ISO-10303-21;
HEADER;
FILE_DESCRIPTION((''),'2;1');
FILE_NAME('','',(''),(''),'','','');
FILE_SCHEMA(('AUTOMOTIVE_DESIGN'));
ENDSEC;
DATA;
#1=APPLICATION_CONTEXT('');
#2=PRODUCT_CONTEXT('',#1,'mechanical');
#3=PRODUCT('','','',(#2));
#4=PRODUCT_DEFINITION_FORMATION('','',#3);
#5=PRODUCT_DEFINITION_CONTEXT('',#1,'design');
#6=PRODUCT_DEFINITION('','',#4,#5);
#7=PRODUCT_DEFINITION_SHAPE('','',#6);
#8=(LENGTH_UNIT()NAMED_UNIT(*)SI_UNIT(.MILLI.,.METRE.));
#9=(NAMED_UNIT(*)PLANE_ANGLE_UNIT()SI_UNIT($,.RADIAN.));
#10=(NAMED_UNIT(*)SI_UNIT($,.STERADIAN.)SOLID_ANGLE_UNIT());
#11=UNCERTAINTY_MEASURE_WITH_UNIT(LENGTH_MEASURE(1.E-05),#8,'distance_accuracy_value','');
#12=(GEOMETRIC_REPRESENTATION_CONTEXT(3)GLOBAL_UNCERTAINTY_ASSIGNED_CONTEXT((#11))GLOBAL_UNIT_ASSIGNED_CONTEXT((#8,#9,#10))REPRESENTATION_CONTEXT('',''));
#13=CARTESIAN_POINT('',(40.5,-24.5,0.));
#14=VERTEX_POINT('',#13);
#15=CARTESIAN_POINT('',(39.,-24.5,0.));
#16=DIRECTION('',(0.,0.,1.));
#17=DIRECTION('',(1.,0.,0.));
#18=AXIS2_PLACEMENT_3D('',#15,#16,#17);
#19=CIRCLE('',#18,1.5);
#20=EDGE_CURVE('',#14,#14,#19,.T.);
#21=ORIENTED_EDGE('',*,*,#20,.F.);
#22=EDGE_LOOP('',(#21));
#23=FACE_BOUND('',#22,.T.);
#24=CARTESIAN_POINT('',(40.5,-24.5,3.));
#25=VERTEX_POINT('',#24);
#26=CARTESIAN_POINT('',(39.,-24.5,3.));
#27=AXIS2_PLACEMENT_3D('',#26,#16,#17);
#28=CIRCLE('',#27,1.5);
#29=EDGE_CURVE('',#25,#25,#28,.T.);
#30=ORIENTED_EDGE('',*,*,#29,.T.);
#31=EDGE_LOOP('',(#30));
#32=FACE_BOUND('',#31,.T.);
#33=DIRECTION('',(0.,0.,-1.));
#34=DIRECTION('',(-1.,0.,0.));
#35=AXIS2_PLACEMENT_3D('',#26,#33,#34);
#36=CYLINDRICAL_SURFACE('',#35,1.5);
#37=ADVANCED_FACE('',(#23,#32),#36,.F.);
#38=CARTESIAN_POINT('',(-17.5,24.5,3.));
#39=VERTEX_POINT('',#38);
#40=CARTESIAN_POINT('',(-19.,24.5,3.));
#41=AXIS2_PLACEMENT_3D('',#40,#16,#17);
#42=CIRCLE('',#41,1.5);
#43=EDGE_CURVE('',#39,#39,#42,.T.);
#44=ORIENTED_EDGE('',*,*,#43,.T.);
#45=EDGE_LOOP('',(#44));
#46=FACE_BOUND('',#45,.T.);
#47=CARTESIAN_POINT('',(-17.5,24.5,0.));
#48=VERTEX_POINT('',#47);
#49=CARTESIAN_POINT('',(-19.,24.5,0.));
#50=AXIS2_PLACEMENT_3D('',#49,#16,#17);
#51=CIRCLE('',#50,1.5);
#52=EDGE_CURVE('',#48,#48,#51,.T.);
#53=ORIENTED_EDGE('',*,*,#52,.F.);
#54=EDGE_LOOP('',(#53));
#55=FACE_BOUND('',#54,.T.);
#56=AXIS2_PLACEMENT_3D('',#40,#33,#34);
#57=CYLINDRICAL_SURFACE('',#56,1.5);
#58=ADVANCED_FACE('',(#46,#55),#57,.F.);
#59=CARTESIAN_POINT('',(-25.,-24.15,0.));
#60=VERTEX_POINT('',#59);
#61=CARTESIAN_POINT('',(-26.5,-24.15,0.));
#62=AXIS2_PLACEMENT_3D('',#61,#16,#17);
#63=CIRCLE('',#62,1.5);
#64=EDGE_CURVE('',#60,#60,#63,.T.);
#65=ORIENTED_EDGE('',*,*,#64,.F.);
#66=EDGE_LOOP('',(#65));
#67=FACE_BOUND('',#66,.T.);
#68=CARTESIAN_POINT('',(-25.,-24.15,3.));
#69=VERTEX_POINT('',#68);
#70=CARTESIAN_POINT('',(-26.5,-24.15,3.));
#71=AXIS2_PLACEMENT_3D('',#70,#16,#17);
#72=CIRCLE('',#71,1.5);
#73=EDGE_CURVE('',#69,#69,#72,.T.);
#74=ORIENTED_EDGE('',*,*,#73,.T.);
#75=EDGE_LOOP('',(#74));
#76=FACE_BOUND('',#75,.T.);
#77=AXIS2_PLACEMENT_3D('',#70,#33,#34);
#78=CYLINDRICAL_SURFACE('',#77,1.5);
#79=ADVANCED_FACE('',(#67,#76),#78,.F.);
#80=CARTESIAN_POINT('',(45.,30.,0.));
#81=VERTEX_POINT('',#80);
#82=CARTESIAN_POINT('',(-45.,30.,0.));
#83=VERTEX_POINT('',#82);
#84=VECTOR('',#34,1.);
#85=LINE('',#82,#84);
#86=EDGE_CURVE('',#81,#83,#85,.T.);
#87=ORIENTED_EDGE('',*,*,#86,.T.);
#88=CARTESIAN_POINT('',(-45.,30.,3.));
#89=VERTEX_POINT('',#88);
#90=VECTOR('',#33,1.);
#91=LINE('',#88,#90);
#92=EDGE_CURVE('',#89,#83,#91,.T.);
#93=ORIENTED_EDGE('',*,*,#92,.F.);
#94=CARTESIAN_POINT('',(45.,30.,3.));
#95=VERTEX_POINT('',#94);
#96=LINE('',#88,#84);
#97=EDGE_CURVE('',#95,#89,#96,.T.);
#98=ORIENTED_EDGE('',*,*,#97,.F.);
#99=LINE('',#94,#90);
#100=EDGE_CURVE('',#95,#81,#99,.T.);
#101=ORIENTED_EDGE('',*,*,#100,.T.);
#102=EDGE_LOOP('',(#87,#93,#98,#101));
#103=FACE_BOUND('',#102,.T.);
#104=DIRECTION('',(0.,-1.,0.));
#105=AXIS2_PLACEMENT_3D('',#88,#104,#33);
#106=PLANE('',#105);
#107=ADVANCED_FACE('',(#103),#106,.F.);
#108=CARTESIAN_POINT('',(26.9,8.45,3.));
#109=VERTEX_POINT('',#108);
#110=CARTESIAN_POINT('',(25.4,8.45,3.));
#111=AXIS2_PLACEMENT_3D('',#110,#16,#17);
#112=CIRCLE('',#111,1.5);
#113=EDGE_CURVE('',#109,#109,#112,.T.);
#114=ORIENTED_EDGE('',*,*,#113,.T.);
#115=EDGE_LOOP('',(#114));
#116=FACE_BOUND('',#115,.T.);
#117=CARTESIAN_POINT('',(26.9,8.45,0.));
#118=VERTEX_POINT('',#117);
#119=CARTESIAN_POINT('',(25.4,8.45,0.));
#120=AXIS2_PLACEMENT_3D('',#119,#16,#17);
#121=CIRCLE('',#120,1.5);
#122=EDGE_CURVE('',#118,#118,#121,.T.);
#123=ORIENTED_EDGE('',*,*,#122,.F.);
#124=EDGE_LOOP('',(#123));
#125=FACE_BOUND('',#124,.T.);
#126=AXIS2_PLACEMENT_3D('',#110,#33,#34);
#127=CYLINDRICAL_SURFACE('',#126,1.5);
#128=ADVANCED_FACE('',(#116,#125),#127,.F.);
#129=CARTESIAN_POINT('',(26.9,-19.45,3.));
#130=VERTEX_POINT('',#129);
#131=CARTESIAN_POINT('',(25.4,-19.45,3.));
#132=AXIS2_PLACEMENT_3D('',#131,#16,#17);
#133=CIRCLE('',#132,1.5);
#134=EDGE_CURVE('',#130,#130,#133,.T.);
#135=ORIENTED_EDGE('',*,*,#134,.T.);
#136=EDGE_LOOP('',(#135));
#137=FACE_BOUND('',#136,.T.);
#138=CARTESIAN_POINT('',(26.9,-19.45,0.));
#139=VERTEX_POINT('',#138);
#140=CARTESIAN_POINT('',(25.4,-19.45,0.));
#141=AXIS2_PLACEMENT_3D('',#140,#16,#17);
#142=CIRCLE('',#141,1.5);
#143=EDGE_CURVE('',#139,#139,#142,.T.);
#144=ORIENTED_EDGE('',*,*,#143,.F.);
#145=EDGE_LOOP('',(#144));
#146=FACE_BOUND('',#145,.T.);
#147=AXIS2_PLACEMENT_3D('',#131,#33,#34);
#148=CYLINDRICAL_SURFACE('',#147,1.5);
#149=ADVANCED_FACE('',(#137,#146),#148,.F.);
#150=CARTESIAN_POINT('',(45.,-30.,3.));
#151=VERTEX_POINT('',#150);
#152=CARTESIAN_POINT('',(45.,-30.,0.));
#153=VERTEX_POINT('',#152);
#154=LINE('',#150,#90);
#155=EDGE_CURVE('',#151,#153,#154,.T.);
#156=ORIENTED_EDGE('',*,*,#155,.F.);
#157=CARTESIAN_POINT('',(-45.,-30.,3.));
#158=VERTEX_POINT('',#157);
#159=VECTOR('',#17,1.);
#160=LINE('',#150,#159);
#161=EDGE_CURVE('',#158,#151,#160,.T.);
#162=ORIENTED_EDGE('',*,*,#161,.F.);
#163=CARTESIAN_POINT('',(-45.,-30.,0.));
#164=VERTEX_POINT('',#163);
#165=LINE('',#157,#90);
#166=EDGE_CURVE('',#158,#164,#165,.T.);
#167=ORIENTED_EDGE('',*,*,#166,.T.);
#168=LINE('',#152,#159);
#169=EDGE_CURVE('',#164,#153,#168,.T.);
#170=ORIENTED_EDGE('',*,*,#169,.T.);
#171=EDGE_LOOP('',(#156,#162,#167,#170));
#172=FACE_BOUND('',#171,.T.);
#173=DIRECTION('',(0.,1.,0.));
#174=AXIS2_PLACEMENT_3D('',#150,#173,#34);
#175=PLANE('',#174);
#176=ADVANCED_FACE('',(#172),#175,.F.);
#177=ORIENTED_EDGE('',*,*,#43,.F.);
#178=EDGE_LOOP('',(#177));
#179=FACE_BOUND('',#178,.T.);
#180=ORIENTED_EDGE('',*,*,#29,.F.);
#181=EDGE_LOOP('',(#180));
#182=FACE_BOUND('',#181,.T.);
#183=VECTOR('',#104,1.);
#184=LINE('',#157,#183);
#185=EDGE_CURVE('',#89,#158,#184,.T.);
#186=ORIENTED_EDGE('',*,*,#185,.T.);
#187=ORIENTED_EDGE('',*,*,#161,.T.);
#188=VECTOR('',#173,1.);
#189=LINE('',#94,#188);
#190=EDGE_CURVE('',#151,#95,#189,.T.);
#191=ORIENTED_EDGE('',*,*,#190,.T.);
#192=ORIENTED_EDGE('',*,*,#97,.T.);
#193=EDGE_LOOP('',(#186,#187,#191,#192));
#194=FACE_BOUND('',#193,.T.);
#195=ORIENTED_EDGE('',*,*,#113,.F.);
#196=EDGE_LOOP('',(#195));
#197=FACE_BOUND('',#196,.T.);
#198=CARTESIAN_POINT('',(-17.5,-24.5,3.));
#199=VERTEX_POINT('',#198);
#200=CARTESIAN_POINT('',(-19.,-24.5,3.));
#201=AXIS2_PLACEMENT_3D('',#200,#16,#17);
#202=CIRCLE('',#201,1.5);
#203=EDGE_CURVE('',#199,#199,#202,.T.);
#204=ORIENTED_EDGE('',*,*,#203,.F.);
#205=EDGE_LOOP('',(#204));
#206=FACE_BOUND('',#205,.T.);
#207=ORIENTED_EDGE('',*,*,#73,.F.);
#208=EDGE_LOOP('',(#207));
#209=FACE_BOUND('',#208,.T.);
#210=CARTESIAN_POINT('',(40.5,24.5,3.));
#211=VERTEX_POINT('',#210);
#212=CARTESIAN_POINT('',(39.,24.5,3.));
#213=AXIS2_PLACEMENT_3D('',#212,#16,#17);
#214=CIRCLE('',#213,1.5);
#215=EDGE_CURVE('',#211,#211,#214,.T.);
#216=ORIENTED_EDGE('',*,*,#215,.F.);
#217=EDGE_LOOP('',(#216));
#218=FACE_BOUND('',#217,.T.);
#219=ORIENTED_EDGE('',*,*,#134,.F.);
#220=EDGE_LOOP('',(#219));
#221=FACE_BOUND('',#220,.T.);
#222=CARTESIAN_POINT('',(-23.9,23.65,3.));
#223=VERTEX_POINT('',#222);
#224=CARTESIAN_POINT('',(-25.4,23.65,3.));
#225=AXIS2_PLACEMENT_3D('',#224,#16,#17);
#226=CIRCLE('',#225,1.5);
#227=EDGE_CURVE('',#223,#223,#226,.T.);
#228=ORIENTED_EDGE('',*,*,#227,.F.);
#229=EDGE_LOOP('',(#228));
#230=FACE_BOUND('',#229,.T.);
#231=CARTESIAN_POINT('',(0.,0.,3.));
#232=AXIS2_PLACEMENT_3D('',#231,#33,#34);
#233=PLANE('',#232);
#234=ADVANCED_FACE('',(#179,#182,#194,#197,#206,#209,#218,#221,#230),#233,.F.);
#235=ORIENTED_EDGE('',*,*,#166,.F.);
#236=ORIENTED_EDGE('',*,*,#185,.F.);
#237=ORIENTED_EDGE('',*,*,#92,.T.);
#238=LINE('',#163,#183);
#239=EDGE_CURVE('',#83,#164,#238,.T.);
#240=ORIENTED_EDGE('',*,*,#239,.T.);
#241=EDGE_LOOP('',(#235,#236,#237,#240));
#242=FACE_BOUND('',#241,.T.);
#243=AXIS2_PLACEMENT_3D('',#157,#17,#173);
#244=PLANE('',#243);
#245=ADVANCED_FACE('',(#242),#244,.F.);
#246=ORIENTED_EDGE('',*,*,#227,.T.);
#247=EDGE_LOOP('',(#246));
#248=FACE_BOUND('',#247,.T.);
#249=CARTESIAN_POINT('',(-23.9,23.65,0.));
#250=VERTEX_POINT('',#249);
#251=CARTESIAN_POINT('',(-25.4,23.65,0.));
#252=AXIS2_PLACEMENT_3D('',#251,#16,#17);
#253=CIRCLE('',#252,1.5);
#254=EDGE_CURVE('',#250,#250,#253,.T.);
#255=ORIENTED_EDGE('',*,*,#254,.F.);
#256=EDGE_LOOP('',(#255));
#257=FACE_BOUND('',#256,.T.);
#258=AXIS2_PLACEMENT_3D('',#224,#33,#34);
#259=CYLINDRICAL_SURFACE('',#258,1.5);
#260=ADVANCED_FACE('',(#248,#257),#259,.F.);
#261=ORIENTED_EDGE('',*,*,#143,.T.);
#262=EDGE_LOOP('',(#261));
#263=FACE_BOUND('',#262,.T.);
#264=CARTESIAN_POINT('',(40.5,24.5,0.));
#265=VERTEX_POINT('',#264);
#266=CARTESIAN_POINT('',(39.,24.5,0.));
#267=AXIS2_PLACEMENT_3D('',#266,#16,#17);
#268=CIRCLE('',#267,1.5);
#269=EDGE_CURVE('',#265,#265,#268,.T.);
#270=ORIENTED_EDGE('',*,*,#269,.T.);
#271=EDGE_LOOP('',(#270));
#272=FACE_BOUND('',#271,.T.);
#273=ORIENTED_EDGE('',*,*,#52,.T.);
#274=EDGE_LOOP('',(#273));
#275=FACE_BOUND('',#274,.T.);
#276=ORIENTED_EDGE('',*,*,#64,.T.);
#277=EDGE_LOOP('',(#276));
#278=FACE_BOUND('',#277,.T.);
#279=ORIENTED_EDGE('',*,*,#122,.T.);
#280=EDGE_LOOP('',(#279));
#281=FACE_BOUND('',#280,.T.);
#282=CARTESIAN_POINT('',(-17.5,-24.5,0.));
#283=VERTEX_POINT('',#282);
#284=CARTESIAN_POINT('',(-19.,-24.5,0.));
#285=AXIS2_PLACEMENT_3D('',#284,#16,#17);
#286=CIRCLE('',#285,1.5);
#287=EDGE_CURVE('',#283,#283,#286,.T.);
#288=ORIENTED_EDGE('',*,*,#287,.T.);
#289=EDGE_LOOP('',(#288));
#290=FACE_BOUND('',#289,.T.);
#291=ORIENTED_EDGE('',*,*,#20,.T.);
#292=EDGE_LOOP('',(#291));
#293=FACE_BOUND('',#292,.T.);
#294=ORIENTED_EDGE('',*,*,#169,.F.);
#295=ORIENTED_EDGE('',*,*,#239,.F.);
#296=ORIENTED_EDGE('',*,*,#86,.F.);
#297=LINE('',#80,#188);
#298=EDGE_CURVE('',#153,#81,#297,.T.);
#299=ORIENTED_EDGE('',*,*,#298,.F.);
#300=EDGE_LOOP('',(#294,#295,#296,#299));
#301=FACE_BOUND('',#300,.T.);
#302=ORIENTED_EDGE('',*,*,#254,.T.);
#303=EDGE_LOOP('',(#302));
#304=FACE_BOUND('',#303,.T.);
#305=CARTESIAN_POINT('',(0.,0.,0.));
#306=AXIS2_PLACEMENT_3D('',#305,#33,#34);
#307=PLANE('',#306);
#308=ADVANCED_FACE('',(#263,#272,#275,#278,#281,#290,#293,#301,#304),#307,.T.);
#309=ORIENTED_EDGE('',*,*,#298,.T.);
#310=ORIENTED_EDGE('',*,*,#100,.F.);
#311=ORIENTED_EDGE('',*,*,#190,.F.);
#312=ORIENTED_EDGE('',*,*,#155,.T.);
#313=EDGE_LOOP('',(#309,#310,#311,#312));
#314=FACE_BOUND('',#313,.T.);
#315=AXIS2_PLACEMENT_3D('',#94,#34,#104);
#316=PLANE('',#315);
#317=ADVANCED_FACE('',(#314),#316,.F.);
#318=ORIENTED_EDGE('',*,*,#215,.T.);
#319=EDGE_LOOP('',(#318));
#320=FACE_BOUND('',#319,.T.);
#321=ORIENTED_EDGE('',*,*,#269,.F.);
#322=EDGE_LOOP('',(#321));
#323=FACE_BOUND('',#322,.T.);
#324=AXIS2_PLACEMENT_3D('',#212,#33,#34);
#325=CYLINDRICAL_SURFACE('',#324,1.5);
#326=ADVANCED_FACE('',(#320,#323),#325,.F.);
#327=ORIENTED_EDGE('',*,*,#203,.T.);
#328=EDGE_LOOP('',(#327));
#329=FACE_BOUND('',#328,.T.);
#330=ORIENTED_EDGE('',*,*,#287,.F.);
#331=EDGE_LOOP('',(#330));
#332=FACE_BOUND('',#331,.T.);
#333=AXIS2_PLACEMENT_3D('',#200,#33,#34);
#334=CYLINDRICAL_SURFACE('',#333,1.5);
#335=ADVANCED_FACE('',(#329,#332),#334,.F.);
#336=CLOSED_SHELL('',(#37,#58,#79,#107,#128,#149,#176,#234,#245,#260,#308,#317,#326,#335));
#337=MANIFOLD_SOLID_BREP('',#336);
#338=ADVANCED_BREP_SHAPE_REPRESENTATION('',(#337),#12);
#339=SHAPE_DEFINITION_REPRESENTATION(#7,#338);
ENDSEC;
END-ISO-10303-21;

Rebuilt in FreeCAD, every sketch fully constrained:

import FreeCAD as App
import Part
import Sketcher

V = App.Vector


def add_polygon(sketch, points):
    """Adds a closed chain of lines whose ends are joined by coincident constraints."""
    first, n = sketch.GeometryCount, len(points)
    for a, b in zip(points, points[1:] + points[:1]):
        sketch.addGeometry(Part.LineSegment(App.Vector(*a, 0), App.Vector(*b, 0)), False)
    for i in range(n):
        sketch.addConstraint(Sketcher.Constraint("Coincident", first + i, 2, first + (i + 1) % n, 1))

doc = App.newDocument("Part")
body = doc.addObject("PartDesign::Body", "Body")

sketch1 = body.newObject("Sketcher::SketchObject", "Sketch")
sketch1.AttachmentSupport = (doc.getObject("XY_Plane"), [""])
sketch1.MapMode = "FlatFace"
add_polygon(sketch1, [(-45, 30), (-45, -30), (45, -30), (45, 30)])
sketch1.addGeometry(Part.Circle(V(-26.5, -24.1, 0), V(0, 0, 1), 1.5), False)
sketch1.addGeometry(Part.Circle(V(-19, -24.5, 0), V(0, 0, 1), 1.5), False)
sketch1.addGeometry(Part.Circle(V(39, -24.5, 0), V(0, 0, 1), 1.5), False)
sketch1.addGeometry(Part.Circle(V(25.4, -19.4, 0), V(0, 0, 1), 1.5), False)
sketch1.addGeometry(Part.Circle(V(-25.4, 23.6, 0), V(0, 0, 1), 1.5), False)
sketch1.addGeometry(Part.Circle(V(-19, 24.5, 0), V(0, 0, 1), 1.5), False)
sketch1.addGeometry(Part.Circle(V(25.4, 8.4, 0), V(0, 0, 1), 1.5), False)
sketch1.addGeometry(Part.Circle(V(39, 24.5, 0), V(0, 0, 1), 1.5), False)
sketch1.addConstraint(Sketcher.Constraint("Vertical", 0))
sketch1.addConstraint(Sketcher.Constraint("Horizontal", 1))
sketch1.addConstraint(Sketcher.Constraint("Vertical", 2))
sketch1.addConstraint(Sketcher.Constraint("Horizontal", 3))
sketch1.addConstraint(Sketcher.Constraint("Equal", 4, 5))
sketch1.addConstraint(Sketcher.Constraint("Equal", 5, 6))
sketch1.addConstraint(Sketcher.Constraint("Equal", 6, 7))
sketch1.addConstraint(Sketcher.Constraint("Equal", 7, 8))
sketch1.addConstraint(Sketcher.Constraint("Equal", 8, 9))
sketch1.addConstraint(Sketcher.Constraint("Equal", 9, 10))
sketch1.addConstraint(Sketcher.Constraint("Equal", 10, 11))
sketch1.addConstraint(Sketcher.Constraint("Symmetric", 0, 2, 2, 2, -1, 1))
sketch1.addConstraint(Sketcher.Constraint("Symmetric", 5, 3, 9, 3, -1))
sketch1.addConstraint(Sketcher.Constraint("Symmetric", 6, 3, 11, 3, -1))
sketch1.addConstraint(Sketcher.Constraint("Horizontal", 5, 3, 6, 3))
sketch1.addConstraint(Sketcher.Constraint("Vertical", 7, 3, 10, 3))
sketch1.addConstraint(Sketcher.Constraint("Diameter", 4, 3.0))
sketch1.addConstraint(Sketcher.Constraint("DistanceX", 1, 1, 1, 2, 90.0))
sketch1.addConstraint(Sketcher.Constraint("DistanceY", 0, 2, 0, 1, 60.0))
sketch1.addConstraint(Sketcher.Constraint("DistanceX", 5, 3, -1, 1, 19.0))
sketch1.addConstraint(Sketcher.Constraint("DistanceX", -1, 1, 6, 3, 39.0))
sketch1.addConstraint(Sketcher.Constraint("DistanceY", 5, 3, 9, 3, 49.0))
sketch1.addConstraint(Sketcher.Constraint("DistanceX", 4, 3, -1, 1, 26.5))
sketch1.addConstraint(Sketcher.Constraint("DistanceX", -1, 1, 7, 3, 25.4))
sketch1.addConstraint(Sketcher.Constraint("DistanceX", 8, 3, -1, 1, 25.4))
sketch1.addConstraint(Sketcher.Constraint("DistanceY", 4, 3, 7, 3, 4.7))
sketch1.addConstraint(Sketcher.Constraint("DistanceY", 4, 3, 8, 3, 47.8))
sketch1.addConstraint(Sketcher.Constraint("DistanceY", 7, 3, 10, 3, 27.9))
sketch1.addConstraint(Sketcher.Constraint("DistanceY", 4, 3, -1, 1, 24.15))
pad1 = body.newObject("PartDesign::Pad", "Pad")
pad1.Profile = sketch1
pad1.Length = 3

doc.recompute()
